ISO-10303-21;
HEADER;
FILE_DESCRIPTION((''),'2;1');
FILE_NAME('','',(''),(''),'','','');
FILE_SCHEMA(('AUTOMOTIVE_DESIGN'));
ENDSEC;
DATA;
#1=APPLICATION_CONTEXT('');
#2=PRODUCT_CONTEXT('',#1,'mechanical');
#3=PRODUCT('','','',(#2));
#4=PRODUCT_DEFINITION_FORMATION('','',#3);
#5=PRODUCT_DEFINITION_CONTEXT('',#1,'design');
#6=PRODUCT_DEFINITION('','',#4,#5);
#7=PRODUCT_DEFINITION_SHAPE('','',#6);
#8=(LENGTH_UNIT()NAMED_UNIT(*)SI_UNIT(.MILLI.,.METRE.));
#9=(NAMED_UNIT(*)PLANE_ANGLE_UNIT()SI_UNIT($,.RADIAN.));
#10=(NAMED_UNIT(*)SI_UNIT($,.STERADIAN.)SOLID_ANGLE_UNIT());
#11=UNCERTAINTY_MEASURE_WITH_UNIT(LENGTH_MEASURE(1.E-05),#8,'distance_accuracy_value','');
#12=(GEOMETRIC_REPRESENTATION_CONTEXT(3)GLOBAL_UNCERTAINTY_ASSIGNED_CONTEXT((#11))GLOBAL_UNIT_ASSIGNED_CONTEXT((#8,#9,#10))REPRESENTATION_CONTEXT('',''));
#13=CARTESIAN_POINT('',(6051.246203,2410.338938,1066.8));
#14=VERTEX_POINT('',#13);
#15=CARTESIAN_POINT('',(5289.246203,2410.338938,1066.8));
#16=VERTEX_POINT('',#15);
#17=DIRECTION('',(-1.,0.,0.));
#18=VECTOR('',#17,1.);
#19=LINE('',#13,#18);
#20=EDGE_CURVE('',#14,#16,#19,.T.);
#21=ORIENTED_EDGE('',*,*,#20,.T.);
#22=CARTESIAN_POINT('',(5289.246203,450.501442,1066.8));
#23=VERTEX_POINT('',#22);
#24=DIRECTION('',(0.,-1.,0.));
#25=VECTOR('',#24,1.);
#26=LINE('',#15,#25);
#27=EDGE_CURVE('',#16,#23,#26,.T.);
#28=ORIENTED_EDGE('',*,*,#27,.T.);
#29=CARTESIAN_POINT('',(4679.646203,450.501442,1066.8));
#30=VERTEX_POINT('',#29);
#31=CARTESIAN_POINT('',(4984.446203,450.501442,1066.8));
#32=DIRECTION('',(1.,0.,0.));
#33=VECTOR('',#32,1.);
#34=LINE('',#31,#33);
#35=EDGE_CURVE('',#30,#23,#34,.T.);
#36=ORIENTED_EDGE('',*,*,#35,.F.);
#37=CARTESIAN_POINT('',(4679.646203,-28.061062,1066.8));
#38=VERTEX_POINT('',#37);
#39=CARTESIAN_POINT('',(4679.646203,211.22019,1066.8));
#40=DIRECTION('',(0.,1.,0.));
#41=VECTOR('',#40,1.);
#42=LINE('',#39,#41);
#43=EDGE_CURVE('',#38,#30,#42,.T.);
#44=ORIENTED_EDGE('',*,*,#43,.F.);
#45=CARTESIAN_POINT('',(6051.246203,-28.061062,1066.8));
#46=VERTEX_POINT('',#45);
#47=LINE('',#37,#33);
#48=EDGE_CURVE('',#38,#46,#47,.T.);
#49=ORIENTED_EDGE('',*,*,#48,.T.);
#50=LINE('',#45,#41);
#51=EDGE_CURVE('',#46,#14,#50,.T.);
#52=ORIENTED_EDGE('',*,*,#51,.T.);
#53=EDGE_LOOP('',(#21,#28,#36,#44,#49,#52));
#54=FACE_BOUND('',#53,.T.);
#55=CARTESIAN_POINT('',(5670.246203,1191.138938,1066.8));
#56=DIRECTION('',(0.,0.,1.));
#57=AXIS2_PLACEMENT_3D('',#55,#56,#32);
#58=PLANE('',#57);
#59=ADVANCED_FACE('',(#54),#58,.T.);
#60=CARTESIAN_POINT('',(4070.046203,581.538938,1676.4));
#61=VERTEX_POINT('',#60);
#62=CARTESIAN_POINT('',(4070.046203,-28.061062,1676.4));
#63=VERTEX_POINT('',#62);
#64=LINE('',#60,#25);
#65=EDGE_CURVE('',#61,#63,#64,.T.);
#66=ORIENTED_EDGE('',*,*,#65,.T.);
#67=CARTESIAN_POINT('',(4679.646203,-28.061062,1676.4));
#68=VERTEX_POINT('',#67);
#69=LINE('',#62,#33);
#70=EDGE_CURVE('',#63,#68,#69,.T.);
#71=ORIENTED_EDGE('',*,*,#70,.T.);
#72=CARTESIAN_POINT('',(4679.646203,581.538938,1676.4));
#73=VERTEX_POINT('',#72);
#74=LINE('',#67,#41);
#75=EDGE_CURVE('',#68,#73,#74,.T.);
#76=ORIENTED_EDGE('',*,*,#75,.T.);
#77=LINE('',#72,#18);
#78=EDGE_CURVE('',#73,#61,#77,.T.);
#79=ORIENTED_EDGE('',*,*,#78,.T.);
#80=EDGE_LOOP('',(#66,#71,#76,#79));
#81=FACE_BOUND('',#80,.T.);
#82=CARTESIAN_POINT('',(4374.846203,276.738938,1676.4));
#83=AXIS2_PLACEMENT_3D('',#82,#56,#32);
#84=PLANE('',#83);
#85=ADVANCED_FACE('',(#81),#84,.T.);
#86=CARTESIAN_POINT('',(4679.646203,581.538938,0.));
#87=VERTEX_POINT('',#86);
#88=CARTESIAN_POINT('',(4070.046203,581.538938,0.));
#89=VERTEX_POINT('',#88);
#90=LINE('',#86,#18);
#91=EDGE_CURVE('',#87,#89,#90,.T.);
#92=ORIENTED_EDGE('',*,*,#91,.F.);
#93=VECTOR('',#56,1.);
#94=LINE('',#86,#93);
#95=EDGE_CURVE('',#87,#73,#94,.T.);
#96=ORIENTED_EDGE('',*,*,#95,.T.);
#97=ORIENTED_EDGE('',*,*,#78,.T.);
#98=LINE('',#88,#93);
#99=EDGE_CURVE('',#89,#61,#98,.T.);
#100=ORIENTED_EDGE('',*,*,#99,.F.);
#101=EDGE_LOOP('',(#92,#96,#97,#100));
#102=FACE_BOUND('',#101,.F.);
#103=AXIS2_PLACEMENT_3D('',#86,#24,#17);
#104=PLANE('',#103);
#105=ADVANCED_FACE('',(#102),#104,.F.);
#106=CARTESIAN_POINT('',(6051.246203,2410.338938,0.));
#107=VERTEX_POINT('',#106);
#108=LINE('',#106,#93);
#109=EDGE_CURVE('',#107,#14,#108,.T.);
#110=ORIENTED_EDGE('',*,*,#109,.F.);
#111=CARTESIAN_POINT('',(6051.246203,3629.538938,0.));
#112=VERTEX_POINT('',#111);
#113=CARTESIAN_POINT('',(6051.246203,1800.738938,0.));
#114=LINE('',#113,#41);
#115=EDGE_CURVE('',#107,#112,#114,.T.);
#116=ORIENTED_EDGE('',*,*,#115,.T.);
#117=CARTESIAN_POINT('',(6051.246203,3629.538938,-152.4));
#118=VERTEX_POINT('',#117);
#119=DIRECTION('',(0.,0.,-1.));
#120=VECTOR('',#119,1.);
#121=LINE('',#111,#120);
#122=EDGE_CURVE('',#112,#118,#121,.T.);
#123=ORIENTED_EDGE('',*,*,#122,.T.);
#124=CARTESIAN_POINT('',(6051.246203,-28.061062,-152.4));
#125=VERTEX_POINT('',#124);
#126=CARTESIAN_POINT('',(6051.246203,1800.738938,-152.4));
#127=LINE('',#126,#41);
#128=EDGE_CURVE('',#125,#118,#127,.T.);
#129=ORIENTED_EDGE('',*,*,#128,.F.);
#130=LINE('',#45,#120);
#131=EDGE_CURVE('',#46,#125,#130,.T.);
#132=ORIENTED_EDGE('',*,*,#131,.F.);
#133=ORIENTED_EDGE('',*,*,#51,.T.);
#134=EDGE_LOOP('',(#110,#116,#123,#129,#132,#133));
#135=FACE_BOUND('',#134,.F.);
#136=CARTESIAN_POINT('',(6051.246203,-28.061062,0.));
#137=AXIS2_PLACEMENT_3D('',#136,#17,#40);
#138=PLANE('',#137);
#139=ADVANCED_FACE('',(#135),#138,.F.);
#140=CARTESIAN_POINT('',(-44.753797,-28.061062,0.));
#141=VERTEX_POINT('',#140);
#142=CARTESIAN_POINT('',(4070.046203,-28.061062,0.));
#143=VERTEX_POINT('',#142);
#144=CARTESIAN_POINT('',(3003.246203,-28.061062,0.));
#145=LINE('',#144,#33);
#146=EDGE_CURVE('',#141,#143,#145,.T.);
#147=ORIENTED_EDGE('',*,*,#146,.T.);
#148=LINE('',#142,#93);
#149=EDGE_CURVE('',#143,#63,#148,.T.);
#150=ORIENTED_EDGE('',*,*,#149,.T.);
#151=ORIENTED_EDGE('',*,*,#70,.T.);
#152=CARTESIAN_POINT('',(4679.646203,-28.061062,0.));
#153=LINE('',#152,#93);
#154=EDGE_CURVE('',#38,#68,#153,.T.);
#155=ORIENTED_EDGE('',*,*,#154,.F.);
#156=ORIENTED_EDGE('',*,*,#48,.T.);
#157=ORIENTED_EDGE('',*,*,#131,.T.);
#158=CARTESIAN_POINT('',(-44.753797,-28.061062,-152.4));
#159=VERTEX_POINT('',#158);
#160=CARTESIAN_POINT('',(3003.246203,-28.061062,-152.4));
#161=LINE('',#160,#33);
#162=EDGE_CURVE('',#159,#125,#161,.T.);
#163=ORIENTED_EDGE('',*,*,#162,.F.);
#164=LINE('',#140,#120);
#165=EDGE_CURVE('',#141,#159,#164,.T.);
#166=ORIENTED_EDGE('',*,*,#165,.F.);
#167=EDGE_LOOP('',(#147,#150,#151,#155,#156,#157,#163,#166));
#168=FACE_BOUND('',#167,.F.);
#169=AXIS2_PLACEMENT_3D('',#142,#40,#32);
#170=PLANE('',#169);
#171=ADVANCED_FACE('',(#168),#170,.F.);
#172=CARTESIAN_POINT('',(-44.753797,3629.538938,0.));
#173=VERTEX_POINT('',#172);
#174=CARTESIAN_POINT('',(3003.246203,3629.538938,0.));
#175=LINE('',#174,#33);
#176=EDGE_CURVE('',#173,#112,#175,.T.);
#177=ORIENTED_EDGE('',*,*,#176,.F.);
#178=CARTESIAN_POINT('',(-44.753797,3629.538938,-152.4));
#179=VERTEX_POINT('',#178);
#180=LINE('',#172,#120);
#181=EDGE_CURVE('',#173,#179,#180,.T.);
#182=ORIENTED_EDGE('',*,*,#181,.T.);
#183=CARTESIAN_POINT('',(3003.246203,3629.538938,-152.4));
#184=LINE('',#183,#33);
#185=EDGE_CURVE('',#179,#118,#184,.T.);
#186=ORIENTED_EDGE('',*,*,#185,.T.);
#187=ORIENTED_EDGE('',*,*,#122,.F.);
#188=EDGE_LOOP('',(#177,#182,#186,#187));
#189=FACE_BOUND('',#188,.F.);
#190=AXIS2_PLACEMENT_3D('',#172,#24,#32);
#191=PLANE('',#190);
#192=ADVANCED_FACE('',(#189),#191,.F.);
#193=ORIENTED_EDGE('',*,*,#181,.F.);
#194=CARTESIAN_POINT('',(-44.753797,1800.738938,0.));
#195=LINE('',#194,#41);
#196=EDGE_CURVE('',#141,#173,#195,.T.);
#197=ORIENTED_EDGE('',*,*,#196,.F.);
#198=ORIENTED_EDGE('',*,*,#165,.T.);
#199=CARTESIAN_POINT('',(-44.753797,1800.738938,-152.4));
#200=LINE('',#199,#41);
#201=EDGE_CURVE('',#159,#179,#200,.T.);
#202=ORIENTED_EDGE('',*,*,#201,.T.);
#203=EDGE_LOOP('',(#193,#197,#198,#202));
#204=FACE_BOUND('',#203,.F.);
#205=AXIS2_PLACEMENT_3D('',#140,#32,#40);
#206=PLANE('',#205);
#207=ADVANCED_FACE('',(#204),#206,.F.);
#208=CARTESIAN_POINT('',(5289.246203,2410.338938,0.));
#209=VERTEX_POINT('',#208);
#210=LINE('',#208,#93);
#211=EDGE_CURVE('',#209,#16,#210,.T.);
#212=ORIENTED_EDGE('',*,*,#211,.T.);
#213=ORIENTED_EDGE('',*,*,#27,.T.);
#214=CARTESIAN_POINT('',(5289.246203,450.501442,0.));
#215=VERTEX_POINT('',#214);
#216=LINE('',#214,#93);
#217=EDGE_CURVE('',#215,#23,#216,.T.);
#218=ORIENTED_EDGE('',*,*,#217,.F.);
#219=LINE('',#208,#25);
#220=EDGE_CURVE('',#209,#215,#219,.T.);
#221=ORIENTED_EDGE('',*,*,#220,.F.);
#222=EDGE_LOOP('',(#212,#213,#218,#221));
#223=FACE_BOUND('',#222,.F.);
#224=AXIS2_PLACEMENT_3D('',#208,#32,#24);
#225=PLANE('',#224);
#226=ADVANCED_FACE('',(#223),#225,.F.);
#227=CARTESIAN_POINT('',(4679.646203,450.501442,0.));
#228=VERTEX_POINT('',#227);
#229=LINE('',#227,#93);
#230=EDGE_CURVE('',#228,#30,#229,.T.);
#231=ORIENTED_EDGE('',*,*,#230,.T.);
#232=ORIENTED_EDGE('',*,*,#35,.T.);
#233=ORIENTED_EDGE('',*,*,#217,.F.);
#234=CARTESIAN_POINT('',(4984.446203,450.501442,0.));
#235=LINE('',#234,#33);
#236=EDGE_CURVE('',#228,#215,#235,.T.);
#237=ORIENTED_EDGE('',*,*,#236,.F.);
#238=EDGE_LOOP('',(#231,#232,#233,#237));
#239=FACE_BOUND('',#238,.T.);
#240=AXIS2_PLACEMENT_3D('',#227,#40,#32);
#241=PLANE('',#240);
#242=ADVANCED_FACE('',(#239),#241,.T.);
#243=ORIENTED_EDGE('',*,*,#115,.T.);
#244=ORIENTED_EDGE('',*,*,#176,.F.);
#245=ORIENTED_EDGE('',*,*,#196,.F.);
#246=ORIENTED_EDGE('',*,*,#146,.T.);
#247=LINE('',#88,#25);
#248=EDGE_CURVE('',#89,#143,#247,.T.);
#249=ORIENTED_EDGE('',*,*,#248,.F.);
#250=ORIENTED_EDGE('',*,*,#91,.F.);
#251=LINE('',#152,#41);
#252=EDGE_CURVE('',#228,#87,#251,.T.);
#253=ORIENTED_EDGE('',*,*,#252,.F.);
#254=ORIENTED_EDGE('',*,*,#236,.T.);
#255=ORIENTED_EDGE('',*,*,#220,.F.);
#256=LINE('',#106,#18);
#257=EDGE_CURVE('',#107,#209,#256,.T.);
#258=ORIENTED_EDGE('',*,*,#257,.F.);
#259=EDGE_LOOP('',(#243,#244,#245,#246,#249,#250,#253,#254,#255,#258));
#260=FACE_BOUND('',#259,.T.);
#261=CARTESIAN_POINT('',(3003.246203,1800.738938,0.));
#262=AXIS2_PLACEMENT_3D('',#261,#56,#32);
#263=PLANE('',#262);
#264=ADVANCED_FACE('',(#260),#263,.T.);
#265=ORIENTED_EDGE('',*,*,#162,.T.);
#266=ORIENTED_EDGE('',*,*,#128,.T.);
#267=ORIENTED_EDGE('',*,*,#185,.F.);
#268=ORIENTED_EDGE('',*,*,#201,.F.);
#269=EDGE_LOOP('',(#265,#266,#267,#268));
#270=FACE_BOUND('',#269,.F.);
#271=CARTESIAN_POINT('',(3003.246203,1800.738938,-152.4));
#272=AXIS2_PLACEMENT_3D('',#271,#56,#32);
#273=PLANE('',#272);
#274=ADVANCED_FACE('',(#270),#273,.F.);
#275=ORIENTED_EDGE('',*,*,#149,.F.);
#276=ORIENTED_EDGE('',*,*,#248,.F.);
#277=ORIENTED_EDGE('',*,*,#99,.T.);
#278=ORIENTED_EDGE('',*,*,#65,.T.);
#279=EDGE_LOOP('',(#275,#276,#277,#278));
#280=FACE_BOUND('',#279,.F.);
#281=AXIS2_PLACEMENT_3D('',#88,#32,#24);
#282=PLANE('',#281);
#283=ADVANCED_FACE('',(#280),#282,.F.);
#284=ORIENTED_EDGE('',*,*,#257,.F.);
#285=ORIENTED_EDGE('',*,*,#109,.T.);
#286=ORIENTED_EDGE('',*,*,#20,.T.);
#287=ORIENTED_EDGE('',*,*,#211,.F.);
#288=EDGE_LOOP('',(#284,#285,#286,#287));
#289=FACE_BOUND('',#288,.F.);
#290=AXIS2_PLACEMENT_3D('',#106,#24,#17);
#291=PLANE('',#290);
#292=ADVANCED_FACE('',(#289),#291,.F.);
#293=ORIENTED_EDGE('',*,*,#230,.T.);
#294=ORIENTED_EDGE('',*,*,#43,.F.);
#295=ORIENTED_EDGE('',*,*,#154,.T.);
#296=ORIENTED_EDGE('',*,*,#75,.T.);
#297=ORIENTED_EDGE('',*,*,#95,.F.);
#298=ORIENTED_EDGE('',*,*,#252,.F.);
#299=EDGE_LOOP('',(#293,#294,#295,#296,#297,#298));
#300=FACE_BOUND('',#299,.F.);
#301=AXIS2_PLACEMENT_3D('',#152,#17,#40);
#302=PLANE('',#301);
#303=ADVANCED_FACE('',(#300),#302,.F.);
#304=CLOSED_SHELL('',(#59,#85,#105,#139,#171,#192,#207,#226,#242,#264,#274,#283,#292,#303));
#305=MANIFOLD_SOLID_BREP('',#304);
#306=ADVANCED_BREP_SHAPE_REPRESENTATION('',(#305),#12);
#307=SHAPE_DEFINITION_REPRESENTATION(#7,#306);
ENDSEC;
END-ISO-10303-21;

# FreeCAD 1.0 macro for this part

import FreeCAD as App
import Part
import Sketcher

V = App.Vector
Q = App.Units.Quantity


def add_polygon(sketch, points):
    """Adds a closed chain of lines whose ends are joined by coincident constraints."""
    first, n = sketch.GeometryCount, len(points)
    for a, b in zip(points, points[1:] + points[:1]):
        sketch.addGeometry(Part.LineSegment(App.Vector(*a, 0), App.Vector(*b, 0)), False)
    for i in range(n):
        sketch.addConstraint(Sketcher.Constraint("Coincident", first + i, 2, first + (i + 1) % n, 1))

doc = App.newDocument("Part")
body = doc.addObject("PartDesign::Body", "Body")

sketch1 = body.newObject("Sketcher::SketchObject", "Sketch")
sketch1.AttachmentSupport = (doc.getObject("XY_Plane"), [""])
sketch1.MapMode = "FlatFace"
add_polygon(sketch1, [(-45, 3630), (-45, -28), (6051, -28), (6051, 3630)])
sketch1.addConstraint(Sketcher.Constraint("Vertical", 0))
sketch1.addConstraint(Sketcher.Constraint("Horizontal", 1))
sketch1.addConstraint(Sketcher.Constraint("Vertical", 2))
sketch1.addConstraint(Sketcher.Constraint("Horizontal", 3))
sketch1.addConstraint(Sketcher.Constraint("DistanceX", 1, 1, 1, 2, Q("240 in")))
sketch1.addConstraint(Sketcher.Constraint("DistanceY", 0, 2, 0, 1, Q("144 in")))
sketch1.addConstraint(Sketcher.Constraint("DistanceY", 0, 2, -1, 1, 28.061062))
sketch1.addConstraint(Sketcher.Constraint("DistanceX", 0, 2, -1, 1, 44.753797))
pad1 = body.newObject("PartDesign::Pad", "Pad")
pad1.Profile = sketch1
pad1.Length = Q("6 in")
pad1.Reversed = True

sketch2 = body.newObject("Sketcher::SketchObject", "Sketch001")
sketch2.AttachmentSupport = (doc.getObject("XY_Plane"), [""])
sketch2.MapMode = "FlatFace"
add_polygon(sketch2, [(6051, -28), (6051, 2410), (5289, 2410), (5289, 451), (4680, 451), (4680, -28)])
sketch2.addConstraint(Sketcher.Constraint("Vertical", 0))
sketch2.addConstraint(Sketcher.Constraint("Horizontal", 1))
sketch2.addConstraint(Sketcher.Constraint("Vertical", 2))
sketch2.addConstraint(Sketcher.Constraint("Horizontal", 3))
sketch2.addConstraint(Sketcher.Constraint("Vertical", 4))
sketch2.addConstraint(Sketcher.Constraint("Horizontal", 5))
sketch2.addConstraint(Sketcher.Constraint("DistanceX", 1, 2, 1, 1, Q("30 in")))
sketch2.addConstraint(Sketcher.Constraint("DistanceX", 3, 2, 3, 1, Q("24 in")))
sketch2.addConstraint(Sketcher.Constraint("DistanceY", 0, 1, 0, 2, Q("96 in")))
sketch2.addConstraint(Sketcher.Constraint("DistanceY", 2, 2, 2, 1, 1959.837496))
sketch2.addConstraint(Sketcher.Constraint("DistanceY", -1, 1, 2, 2, 450.501442))
sketch2.addConstraint(Sketcher.Constraint("DistanceX", -1, 1, 0, 2, 6051.246203))
pad2 = body.newObject("PartDesign::Pad", "Pad001")
pad2.Profile = sketch2
pad2.Length = Q("42 in")

sketch3 = body.newObject("Sketcher::SketchObject", "Sketch002")
sketch3.AttachmentSupport = (doc.getObject("XY_Plane"), [""])
sketch3.MapMode = "FlatFace"
add_polygon(sketch3, [(4070, 582), (4070, -28), (4680, -28), (4680, 582)])
sketch3.addConstraint(Sketcher.Constraint("Vertical", 0))
sketch3.addConstraint(Sketcher.Constraint("Horizontal", 1))
sketch3.addConstraint(Sketcher.Constraint("Vertical", 2))
sketch3.addConstraint(Sketcher.Constraint("Horizontal", 3))
sketch3.addConstraint(Sketcher.Constraint("Equal", 3, 0))
sketch3.addConstraint(Sketcher.Constraint("DistanceX", 1, 1, 1, 2, Q("24 in")))
sketch3.addConstraint(Sketcher.Constraint("DistanceY", 0, 2, -1, 1, 28.061062))
sketch3.addConstraint(Sketcher.Constraint("DistanceX", -1, 1, 0, 2, 4070.046203))
pad3 = body.newObject("PartDesign::Pad", "Pad002")
pad3.Profile = sketch3
pad3.Length = Q("66 in")

doc.recompute()
